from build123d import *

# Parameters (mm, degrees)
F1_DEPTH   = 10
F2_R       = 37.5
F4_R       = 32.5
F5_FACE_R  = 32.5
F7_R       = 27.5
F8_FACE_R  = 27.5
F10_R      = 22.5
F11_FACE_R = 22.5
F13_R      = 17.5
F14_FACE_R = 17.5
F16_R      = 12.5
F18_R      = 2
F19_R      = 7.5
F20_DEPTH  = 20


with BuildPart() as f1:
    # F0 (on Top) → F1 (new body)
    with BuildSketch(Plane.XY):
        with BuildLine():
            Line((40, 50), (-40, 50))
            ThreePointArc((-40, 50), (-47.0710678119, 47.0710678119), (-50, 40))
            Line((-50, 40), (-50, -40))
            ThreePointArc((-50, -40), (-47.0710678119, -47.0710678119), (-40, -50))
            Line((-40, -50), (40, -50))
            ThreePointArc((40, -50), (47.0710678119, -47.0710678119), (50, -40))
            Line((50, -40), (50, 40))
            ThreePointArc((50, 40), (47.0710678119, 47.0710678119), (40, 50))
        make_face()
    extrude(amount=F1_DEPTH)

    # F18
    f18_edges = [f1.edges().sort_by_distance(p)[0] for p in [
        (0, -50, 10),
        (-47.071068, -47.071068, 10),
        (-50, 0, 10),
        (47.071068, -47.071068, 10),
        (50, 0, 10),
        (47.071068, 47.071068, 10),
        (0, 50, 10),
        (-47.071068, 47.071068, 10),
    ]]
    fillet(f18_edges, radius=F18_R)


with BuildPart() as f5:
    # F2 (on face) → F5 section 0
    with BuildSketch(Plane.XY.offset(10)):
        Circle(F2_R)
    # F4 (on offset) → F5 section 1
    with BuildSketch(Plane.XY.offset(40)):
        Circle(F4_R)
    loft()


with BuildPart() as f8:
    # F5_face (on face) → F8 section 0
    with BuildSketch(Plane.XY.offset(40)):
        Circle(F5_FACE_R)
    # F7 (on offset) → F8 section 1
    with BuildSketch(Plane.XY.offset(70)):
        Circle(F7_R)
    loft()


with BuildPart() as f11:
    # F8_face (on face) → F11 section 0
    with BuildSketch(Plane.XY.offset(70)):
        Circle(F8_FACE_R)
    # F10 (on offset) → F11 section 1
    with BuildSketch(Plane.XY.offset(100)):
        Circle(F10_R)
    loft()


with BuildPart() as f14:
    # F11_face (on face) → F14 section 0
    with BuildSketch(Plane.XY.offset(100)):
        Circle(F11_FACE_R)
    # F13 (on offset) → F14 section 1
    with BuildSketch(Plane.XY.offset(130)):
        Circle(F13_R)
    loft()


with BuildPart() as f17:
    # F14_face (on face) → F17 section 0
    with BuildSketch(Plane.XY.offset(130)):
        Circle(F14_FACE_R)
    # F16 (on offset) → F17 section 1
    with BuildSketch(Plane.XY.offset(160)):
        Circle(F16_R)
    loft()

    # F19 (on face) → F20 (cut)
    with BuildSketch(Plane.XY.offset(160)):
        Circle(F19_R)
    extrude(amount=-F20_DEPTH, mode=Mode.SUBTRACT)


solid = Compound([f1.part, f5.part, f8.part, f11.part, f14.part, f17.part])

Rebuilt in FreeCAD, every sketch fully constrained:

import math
import FreeCAD as App
import Part
import Sketcher

V = App.Vector


def edges_at(feature, points):
    """Names of the edges that pass closest to the given points."""
    edges = feature.Shape.Edges
    near = lambda p: min(range(len(edges)), key=lambda i: edges[i].distToShape(Part.Vertex(*p))[0])
    return sorted({f"Edge{near(p) + 1}" for p in points})

doc = App.newDocument("Part")
body = doc.addObject("PartDesign::Body", "Body")

# Sketch on XY plane
sketch1 = doc.addObject("Sketcher::SketchObject", "Sketch")
body.addObject(sketch1)
sketch1.AttachmentSupport = (doc.XY_Plane, [""])
sketch1.MapMode = "FlatFace"
sketch1.addGeometry([
    Part.LineSegment(V(40, 50, 0), V(-40, 50, 0)),  # 0
    Part.ArcOfCircle(Part.Circle(V(-40, 40, 0), V(0, 0, 1), 10), math.radians(90), math.radians(180)),  # 1
    Part.LineSegment(V(-50, 40, 0), V(-50, -40, 0)),  # 2
    Part.ArcOfCircle(Part.Circle(V(-40, -40, 0), V(0, 0, 1), 10), math.radians(180), math.radians(270)),  # 3
    Part.LineSegment(V(-40, -50, 0), V(40, -50, 0)),  # 4
    Part.ArcOfCircle(Part.Circle(V(40, -40, 0), V(0, 0, 1), 10), math.radians(-90), math.radians(0)),  # 5
    Part.LineSegment(V(50, -40, 0), V(50, 40, 0)),  # 6
    Part.ArcOfCircle(Part.Circle(V(40, 40, 0), V(0, 0, 1), 10), math.radians(0), math.radians(90)),  # 7
], False)
sketch1.addConstraint([
    Sketcher.Constraint("Tangent", 0, 2, 1, 1),
    Sketcher.Constraint("Tangent", 1, 2, 2, 1),
    Sketcher.Constraint("Tangent", 2, 2, 3, 1),
    Sketcher.Constraint("Tangent", 3, 2, 4, 1),
    Sketcher.Constraint("Tangent", 4, 2, 5, 1),
    Sketcher.Constraint("Tangent", 5, 2, 6, 1),
    Sketcher.Constraint("Tangent", 6, 2, 7, 1),
    Sketcher.Constraint("Tangent", 7, 2, 0, 1),
    Sketcher.Constraint("Horizontal", 0),
    Sketcher.Constraint("Vertical", 2),
    Sketcher.Constraint("Horizontal", 4),
    Sketcher.Constraint("Vertical", 6),
    Sketcher.Constraint("Equal", 1, 3),
    Sketcher.Constraint("Equal", 3, 5),
    Sketcher.Constraint("Equal", 5, 7),
    Sketcher.Constraint("Symmetric", 1, 3, 5, 3, -1, 1),
    Sketcher.Constraint("Equal", 4, 2),
    Sketcher.Constraint("Radius", 1, 10.0),
    Sketcher.Constraint("DistanceX", 0, 2, 0, 1, 80.0),
])
pad1 = doc.addObject("PartDesign::Pad", "Pad")
body.addObject(pad1)
pad1.Profile = sketch1
pad1.Length = 10
doc.recompute()

fillet = doc.addObject("PartDesign::Fillet", "Fillet")
body.addObject(fillet)
fillet.Base = (pad1, edges_at(pad1, [
    (0, -50, 10),
    (-47.071, -47.071, 10),
    (-50, 0, 10),
    (47.071, -47.071, 10),
    (50, 0, 10),
    (47.071, 47.071, 10),
    (0, 50, 10),
    (-47.071, 47.071, 10),
]))
fillet.Radius = 2
body2 = doc.addObject("PartDesign::Body", "Body001")

# Sketch on XY plane
sketch2 = doc.addObject("Sketcher::SketchObject", "Sketch001")
body2.addObject(sketch2)
sketch2.AttachmentSupport = (doc.getObject("XY_Plane001"), [""])
sketch2.MapMode = "FlatFace"
sketch2.AttachmentOffset = App.Placement(V(0, 0, 10), App.Rotation())
sketch2.addGeometry(Part.Circle(V(0, 0, 0), V(0, 0, 1), 38), False)
sketch2.addConstraint([
    Sketcher.Constraint("Coincident", 0, 3, -1, 1),
    Sketcher.Constraint("Diameter", 0, 75.0),
])

# Sketch on XY plane
sketch3 = doc.addObject("Sketcher::SketchObject", "Sketch002")
body2.addObject(sketch3)
sketch3.AttachmentSupport = (doc.getObject("XY_Plane001"), [""])
sketch3.MapMode = "FlatFace"
sketch3.AttachmentOffset = App.Placement(V(0, 0, 40), App.Rotation())
sketch3.addGeometry(Part.Circle(V(0, 0, 0), V(0, 0, 1), 32), False)
sketch3.addConstraint([
    Sketcher.Constraint("Coincident", 0, 3, -1, 1),
    Sketcher.Constraint("Diameter", 0, 65.0),
])

additiveloft = doc.addObject("PartDesign::AdditiveLoft", "AdditiveLoft")
body2.addObject(additiveloft)
additiveloft.Profile = sketch2
additiveloft.Sections = [sketch3]
body3 = doc.addObject("PartDesign::Body", "Body002")

# Sketch on XY plane
sketch4 = doc.addObject("Sketcher::SketchObject", "Sketch003")
body3.addObject(sketch4)
sketch4.AttachmentSupport = (doc.getObject("XY_Plane002"), [""])
sketch4.MapMode = "FlatFace"
sketch4.AttachmentOffset = App.Placement(V(0, 0, 40), App.Rotation())
sketch4.addGeometry(Part.Circle(V(0, 0, 0), V(0, 0, 1), 32), False)
sketch4.addConstraint([
    Sketcher.Constraint("Coincident", 0, 3, -1, 1),
    Sketcher.Constraint("Diameter", 0, 65.0),
])

# Sketch on XY plane
sketch5 = doc.addObject("Sketcher::SketchObject", "Sketch004")
body3.addObject(sketch5)
sketch5.AttachmentSupport = (doc.getObject("XY_Plane002"), [""])
sketch5.MapMode = "FlatFace"
sketch5.AttachmentOffset = App.Placement(V(0, 0, 70), App.Rotation())
sketch5.addGeometry(Part.Circle(V(0, 0, 0), V(0, 0, 1), 28), False)
sketch5.addConstraint([
    Sketcher.Constraint("Coincident", 0, 3, -1, 1),
    Sketcher.Constraint("Diameter", 0, 55.0),
])

additiveloft2 = doc.addObject("PartDesign::AdditiveLoft", "AdditiveLoft001")
body3.addObject(additiveloft2)
additiveloft2.Profile = sketch4
additiveloft2.Sections = [sketch5]
body4 = doc.addObject("PartDesign::Body", "Body003")

# Sketch on XY plane
sketch6 = doc.addObject("Sketcher::SketchObject", "Sketch005")
body4.addObject(sketch6)
sketch6.AttachmentSupport = (doc.getObject("XY_Plane003"), [""])
sketch6.MapMode = "FlatFace"
sketch6.AttachmentOffset = App.Placement(V(0, 0, 70), App.Rotation())
sketch6.addGeometry(Part.Circle(V(0, 0, 0), V(0, 0, 1), 28), False)
sketch6.addConstraint([
    Sketcher.Constraint("Coincident", 0, 3, -1, 1),
    Sketcher.Constraint("Diameter", 0, 55.0),
])

# Sketch on XY plane
sketch7 = doc.addObject("Sketcher::SketchObject", "Sketch006")
body4.addObject(sketch7)
sketch7.AttachmentSupport = (doc.getObject("XY_Plane003"), [""])
sketch7.MapMode = "FlatFace"
sketch7.AttachmentOffset = App.Placement(V(0, 0, 100), App.Rotation())
sketch7.addGeometry(Part.Circle(V(0, 0, 0), V(0, 0, 1), 22), False)
sketch7.addConstraint([
    Sketcher.Constraint("Coincident", 0, 3, -1, 1),
    Sketcher.Constraint("Diameter", 0, 45.0),
])

additiveloft3 = doc.addObject("PartDesign::AdditiveLoft", "AdditiveLoft002")
body4.addObject(additiveloft3)
additiveloft3.Profile = sketch6
additiveloft3.Sections = [sketch7]
body5 = doc.addObject("PartDesign::Body", "Body004")

# Sketch on XY plane
sketch8 = doc.addObject("Sketcher::SketchObject", "Sketch007")
body5.addObject(sketch8)
sketch8.AttachmentSupport = (doc.getObject("XY_Plane004"), [""])
sketch8.MapMode = "FlatFace"
sketch8.AttachmentOffset = App.Placement(V(0, 0, 100), App.Rotation())
sketch8.addGeometry(Part.Circle(V(0, 0, 0), V(0, 0, 1), 22), False)
sketch8.addConstraint([
    Sketcher.Constraint("Coincident", 0, 3, -1, 1),
    Sketcher.Constraint("Diameter", 0, 45.0),
])

# Sketch on XY plane
sketch9 = doc.addObject("Sketcher::SketchObject", "Sketch008")
body5.addObject(sketch9)
sketch9.AttachmentSupport = (doc.getObject("XY_Plane004"), [""])
sketch9.MapMode = "FlatFace"
sketch9.AttachmentOffset = App.Placement(V(0, 0, 130), App.Rotation())
sketch9.addGeometry(Part.Circle(V(0, 0, 0), V(0, 0, 1), 18), False)
sketch9.addConstraint([
    Sketcher.Constraint("Coincident", 0, 3, -1, 1),
    Sketcher.Constraint("Diameter", 0, 35.0),
])

additiveloft4 = doc.addObject("PartDesign::AdditiveLoft", "AdditiveLoft003")
body5.addObject(additiveloft4)
additiveloft4.Profile = sketch8
additiveloft4.Sections = [sketch9]
body6 = doc.addObject("PartDesign::Body", "Body005")

# Sketch on XY plane
sketch10 = doc.addObject("Sketcher::SketchObject", "Sketch009")
body6.addObject(sketch10)
sketch10.AttachmentSupport = (doc.getObject("XY_Plane005"), [""])
sketch10.MapMode = "FlatFace"
sketch10.AttachmentOffset = App.Placement(V(0, 0, 130), App.Rotation())
sketch10.addGeometry(Part.Circle(V(0, 0, 0), V(0, 0, 1), 18), False)
sketch10.addConstraint([
    Sketcher.Constraint("Coincident", 0, 3, -1, 1),
    Sketcher.Constraint("Diameter", 0, 35.0),
])

# Sketch on XY plane
sketch11 = doc.addObject("Sketcher::SketchObject", "Sketch010")
body6.addObject(sketch11)
sketch11.AttachmentSupport = (doc.getObject("XY_Plane005"), [""])
sketch11.MapMode = "FlatFace"
sketch11.AttachmentOffset = App.Placement(V(0, 0, 160), App.Rotation())
sketch11.addGeometry(Part.Circle(V(0, 0, 0), V(0, 0, 1), 12), False)
sketch11.addConstraint([
    Sketcher.Constraint("Coincident", 0, 3, -1, 1),
    Sketcher.Constraint("Diameter", 0, 25.0),
])

additiveloft5 = doc.addObject("PartDesign::AdditiveLoft", "AdditiveLoft004")
body6.addObject(additiveloft5)
additiveloft5.Profile = sketch10
additiveloft5.Sections = [sketch11]

# Sketch on XY plane
sketch12 = doc.addObject("Sketcher::SketchObject", "Sketch011")
body6.addObject(sketch12)
sketch12.AttachmentSupport = (doc.getObject("XY_Plane005"), [""])
sketch12.MapMode = "FlatFace"
sketch12.AttachmentOffset = App.Placement(V(0, 0, 160), App.Rotation())
sketch12.addGeometry(Part.Circle(V(0, 0, 0), V(0, 0, 1), 8), False)
sketch12.addConstraint([
    Sketcher.Constraint("Coincident", 0, 3, -1, 1),
    Sketcher.Constraint("Diameter", 0, 15.0),
])
pocket1 = doc.addObject("PartDesign::Pocket", "Pocket")
body6.addObject(pocket1)
pocket1.Profile = sketch12
pocket1.Length = 20

doc.recompute()
